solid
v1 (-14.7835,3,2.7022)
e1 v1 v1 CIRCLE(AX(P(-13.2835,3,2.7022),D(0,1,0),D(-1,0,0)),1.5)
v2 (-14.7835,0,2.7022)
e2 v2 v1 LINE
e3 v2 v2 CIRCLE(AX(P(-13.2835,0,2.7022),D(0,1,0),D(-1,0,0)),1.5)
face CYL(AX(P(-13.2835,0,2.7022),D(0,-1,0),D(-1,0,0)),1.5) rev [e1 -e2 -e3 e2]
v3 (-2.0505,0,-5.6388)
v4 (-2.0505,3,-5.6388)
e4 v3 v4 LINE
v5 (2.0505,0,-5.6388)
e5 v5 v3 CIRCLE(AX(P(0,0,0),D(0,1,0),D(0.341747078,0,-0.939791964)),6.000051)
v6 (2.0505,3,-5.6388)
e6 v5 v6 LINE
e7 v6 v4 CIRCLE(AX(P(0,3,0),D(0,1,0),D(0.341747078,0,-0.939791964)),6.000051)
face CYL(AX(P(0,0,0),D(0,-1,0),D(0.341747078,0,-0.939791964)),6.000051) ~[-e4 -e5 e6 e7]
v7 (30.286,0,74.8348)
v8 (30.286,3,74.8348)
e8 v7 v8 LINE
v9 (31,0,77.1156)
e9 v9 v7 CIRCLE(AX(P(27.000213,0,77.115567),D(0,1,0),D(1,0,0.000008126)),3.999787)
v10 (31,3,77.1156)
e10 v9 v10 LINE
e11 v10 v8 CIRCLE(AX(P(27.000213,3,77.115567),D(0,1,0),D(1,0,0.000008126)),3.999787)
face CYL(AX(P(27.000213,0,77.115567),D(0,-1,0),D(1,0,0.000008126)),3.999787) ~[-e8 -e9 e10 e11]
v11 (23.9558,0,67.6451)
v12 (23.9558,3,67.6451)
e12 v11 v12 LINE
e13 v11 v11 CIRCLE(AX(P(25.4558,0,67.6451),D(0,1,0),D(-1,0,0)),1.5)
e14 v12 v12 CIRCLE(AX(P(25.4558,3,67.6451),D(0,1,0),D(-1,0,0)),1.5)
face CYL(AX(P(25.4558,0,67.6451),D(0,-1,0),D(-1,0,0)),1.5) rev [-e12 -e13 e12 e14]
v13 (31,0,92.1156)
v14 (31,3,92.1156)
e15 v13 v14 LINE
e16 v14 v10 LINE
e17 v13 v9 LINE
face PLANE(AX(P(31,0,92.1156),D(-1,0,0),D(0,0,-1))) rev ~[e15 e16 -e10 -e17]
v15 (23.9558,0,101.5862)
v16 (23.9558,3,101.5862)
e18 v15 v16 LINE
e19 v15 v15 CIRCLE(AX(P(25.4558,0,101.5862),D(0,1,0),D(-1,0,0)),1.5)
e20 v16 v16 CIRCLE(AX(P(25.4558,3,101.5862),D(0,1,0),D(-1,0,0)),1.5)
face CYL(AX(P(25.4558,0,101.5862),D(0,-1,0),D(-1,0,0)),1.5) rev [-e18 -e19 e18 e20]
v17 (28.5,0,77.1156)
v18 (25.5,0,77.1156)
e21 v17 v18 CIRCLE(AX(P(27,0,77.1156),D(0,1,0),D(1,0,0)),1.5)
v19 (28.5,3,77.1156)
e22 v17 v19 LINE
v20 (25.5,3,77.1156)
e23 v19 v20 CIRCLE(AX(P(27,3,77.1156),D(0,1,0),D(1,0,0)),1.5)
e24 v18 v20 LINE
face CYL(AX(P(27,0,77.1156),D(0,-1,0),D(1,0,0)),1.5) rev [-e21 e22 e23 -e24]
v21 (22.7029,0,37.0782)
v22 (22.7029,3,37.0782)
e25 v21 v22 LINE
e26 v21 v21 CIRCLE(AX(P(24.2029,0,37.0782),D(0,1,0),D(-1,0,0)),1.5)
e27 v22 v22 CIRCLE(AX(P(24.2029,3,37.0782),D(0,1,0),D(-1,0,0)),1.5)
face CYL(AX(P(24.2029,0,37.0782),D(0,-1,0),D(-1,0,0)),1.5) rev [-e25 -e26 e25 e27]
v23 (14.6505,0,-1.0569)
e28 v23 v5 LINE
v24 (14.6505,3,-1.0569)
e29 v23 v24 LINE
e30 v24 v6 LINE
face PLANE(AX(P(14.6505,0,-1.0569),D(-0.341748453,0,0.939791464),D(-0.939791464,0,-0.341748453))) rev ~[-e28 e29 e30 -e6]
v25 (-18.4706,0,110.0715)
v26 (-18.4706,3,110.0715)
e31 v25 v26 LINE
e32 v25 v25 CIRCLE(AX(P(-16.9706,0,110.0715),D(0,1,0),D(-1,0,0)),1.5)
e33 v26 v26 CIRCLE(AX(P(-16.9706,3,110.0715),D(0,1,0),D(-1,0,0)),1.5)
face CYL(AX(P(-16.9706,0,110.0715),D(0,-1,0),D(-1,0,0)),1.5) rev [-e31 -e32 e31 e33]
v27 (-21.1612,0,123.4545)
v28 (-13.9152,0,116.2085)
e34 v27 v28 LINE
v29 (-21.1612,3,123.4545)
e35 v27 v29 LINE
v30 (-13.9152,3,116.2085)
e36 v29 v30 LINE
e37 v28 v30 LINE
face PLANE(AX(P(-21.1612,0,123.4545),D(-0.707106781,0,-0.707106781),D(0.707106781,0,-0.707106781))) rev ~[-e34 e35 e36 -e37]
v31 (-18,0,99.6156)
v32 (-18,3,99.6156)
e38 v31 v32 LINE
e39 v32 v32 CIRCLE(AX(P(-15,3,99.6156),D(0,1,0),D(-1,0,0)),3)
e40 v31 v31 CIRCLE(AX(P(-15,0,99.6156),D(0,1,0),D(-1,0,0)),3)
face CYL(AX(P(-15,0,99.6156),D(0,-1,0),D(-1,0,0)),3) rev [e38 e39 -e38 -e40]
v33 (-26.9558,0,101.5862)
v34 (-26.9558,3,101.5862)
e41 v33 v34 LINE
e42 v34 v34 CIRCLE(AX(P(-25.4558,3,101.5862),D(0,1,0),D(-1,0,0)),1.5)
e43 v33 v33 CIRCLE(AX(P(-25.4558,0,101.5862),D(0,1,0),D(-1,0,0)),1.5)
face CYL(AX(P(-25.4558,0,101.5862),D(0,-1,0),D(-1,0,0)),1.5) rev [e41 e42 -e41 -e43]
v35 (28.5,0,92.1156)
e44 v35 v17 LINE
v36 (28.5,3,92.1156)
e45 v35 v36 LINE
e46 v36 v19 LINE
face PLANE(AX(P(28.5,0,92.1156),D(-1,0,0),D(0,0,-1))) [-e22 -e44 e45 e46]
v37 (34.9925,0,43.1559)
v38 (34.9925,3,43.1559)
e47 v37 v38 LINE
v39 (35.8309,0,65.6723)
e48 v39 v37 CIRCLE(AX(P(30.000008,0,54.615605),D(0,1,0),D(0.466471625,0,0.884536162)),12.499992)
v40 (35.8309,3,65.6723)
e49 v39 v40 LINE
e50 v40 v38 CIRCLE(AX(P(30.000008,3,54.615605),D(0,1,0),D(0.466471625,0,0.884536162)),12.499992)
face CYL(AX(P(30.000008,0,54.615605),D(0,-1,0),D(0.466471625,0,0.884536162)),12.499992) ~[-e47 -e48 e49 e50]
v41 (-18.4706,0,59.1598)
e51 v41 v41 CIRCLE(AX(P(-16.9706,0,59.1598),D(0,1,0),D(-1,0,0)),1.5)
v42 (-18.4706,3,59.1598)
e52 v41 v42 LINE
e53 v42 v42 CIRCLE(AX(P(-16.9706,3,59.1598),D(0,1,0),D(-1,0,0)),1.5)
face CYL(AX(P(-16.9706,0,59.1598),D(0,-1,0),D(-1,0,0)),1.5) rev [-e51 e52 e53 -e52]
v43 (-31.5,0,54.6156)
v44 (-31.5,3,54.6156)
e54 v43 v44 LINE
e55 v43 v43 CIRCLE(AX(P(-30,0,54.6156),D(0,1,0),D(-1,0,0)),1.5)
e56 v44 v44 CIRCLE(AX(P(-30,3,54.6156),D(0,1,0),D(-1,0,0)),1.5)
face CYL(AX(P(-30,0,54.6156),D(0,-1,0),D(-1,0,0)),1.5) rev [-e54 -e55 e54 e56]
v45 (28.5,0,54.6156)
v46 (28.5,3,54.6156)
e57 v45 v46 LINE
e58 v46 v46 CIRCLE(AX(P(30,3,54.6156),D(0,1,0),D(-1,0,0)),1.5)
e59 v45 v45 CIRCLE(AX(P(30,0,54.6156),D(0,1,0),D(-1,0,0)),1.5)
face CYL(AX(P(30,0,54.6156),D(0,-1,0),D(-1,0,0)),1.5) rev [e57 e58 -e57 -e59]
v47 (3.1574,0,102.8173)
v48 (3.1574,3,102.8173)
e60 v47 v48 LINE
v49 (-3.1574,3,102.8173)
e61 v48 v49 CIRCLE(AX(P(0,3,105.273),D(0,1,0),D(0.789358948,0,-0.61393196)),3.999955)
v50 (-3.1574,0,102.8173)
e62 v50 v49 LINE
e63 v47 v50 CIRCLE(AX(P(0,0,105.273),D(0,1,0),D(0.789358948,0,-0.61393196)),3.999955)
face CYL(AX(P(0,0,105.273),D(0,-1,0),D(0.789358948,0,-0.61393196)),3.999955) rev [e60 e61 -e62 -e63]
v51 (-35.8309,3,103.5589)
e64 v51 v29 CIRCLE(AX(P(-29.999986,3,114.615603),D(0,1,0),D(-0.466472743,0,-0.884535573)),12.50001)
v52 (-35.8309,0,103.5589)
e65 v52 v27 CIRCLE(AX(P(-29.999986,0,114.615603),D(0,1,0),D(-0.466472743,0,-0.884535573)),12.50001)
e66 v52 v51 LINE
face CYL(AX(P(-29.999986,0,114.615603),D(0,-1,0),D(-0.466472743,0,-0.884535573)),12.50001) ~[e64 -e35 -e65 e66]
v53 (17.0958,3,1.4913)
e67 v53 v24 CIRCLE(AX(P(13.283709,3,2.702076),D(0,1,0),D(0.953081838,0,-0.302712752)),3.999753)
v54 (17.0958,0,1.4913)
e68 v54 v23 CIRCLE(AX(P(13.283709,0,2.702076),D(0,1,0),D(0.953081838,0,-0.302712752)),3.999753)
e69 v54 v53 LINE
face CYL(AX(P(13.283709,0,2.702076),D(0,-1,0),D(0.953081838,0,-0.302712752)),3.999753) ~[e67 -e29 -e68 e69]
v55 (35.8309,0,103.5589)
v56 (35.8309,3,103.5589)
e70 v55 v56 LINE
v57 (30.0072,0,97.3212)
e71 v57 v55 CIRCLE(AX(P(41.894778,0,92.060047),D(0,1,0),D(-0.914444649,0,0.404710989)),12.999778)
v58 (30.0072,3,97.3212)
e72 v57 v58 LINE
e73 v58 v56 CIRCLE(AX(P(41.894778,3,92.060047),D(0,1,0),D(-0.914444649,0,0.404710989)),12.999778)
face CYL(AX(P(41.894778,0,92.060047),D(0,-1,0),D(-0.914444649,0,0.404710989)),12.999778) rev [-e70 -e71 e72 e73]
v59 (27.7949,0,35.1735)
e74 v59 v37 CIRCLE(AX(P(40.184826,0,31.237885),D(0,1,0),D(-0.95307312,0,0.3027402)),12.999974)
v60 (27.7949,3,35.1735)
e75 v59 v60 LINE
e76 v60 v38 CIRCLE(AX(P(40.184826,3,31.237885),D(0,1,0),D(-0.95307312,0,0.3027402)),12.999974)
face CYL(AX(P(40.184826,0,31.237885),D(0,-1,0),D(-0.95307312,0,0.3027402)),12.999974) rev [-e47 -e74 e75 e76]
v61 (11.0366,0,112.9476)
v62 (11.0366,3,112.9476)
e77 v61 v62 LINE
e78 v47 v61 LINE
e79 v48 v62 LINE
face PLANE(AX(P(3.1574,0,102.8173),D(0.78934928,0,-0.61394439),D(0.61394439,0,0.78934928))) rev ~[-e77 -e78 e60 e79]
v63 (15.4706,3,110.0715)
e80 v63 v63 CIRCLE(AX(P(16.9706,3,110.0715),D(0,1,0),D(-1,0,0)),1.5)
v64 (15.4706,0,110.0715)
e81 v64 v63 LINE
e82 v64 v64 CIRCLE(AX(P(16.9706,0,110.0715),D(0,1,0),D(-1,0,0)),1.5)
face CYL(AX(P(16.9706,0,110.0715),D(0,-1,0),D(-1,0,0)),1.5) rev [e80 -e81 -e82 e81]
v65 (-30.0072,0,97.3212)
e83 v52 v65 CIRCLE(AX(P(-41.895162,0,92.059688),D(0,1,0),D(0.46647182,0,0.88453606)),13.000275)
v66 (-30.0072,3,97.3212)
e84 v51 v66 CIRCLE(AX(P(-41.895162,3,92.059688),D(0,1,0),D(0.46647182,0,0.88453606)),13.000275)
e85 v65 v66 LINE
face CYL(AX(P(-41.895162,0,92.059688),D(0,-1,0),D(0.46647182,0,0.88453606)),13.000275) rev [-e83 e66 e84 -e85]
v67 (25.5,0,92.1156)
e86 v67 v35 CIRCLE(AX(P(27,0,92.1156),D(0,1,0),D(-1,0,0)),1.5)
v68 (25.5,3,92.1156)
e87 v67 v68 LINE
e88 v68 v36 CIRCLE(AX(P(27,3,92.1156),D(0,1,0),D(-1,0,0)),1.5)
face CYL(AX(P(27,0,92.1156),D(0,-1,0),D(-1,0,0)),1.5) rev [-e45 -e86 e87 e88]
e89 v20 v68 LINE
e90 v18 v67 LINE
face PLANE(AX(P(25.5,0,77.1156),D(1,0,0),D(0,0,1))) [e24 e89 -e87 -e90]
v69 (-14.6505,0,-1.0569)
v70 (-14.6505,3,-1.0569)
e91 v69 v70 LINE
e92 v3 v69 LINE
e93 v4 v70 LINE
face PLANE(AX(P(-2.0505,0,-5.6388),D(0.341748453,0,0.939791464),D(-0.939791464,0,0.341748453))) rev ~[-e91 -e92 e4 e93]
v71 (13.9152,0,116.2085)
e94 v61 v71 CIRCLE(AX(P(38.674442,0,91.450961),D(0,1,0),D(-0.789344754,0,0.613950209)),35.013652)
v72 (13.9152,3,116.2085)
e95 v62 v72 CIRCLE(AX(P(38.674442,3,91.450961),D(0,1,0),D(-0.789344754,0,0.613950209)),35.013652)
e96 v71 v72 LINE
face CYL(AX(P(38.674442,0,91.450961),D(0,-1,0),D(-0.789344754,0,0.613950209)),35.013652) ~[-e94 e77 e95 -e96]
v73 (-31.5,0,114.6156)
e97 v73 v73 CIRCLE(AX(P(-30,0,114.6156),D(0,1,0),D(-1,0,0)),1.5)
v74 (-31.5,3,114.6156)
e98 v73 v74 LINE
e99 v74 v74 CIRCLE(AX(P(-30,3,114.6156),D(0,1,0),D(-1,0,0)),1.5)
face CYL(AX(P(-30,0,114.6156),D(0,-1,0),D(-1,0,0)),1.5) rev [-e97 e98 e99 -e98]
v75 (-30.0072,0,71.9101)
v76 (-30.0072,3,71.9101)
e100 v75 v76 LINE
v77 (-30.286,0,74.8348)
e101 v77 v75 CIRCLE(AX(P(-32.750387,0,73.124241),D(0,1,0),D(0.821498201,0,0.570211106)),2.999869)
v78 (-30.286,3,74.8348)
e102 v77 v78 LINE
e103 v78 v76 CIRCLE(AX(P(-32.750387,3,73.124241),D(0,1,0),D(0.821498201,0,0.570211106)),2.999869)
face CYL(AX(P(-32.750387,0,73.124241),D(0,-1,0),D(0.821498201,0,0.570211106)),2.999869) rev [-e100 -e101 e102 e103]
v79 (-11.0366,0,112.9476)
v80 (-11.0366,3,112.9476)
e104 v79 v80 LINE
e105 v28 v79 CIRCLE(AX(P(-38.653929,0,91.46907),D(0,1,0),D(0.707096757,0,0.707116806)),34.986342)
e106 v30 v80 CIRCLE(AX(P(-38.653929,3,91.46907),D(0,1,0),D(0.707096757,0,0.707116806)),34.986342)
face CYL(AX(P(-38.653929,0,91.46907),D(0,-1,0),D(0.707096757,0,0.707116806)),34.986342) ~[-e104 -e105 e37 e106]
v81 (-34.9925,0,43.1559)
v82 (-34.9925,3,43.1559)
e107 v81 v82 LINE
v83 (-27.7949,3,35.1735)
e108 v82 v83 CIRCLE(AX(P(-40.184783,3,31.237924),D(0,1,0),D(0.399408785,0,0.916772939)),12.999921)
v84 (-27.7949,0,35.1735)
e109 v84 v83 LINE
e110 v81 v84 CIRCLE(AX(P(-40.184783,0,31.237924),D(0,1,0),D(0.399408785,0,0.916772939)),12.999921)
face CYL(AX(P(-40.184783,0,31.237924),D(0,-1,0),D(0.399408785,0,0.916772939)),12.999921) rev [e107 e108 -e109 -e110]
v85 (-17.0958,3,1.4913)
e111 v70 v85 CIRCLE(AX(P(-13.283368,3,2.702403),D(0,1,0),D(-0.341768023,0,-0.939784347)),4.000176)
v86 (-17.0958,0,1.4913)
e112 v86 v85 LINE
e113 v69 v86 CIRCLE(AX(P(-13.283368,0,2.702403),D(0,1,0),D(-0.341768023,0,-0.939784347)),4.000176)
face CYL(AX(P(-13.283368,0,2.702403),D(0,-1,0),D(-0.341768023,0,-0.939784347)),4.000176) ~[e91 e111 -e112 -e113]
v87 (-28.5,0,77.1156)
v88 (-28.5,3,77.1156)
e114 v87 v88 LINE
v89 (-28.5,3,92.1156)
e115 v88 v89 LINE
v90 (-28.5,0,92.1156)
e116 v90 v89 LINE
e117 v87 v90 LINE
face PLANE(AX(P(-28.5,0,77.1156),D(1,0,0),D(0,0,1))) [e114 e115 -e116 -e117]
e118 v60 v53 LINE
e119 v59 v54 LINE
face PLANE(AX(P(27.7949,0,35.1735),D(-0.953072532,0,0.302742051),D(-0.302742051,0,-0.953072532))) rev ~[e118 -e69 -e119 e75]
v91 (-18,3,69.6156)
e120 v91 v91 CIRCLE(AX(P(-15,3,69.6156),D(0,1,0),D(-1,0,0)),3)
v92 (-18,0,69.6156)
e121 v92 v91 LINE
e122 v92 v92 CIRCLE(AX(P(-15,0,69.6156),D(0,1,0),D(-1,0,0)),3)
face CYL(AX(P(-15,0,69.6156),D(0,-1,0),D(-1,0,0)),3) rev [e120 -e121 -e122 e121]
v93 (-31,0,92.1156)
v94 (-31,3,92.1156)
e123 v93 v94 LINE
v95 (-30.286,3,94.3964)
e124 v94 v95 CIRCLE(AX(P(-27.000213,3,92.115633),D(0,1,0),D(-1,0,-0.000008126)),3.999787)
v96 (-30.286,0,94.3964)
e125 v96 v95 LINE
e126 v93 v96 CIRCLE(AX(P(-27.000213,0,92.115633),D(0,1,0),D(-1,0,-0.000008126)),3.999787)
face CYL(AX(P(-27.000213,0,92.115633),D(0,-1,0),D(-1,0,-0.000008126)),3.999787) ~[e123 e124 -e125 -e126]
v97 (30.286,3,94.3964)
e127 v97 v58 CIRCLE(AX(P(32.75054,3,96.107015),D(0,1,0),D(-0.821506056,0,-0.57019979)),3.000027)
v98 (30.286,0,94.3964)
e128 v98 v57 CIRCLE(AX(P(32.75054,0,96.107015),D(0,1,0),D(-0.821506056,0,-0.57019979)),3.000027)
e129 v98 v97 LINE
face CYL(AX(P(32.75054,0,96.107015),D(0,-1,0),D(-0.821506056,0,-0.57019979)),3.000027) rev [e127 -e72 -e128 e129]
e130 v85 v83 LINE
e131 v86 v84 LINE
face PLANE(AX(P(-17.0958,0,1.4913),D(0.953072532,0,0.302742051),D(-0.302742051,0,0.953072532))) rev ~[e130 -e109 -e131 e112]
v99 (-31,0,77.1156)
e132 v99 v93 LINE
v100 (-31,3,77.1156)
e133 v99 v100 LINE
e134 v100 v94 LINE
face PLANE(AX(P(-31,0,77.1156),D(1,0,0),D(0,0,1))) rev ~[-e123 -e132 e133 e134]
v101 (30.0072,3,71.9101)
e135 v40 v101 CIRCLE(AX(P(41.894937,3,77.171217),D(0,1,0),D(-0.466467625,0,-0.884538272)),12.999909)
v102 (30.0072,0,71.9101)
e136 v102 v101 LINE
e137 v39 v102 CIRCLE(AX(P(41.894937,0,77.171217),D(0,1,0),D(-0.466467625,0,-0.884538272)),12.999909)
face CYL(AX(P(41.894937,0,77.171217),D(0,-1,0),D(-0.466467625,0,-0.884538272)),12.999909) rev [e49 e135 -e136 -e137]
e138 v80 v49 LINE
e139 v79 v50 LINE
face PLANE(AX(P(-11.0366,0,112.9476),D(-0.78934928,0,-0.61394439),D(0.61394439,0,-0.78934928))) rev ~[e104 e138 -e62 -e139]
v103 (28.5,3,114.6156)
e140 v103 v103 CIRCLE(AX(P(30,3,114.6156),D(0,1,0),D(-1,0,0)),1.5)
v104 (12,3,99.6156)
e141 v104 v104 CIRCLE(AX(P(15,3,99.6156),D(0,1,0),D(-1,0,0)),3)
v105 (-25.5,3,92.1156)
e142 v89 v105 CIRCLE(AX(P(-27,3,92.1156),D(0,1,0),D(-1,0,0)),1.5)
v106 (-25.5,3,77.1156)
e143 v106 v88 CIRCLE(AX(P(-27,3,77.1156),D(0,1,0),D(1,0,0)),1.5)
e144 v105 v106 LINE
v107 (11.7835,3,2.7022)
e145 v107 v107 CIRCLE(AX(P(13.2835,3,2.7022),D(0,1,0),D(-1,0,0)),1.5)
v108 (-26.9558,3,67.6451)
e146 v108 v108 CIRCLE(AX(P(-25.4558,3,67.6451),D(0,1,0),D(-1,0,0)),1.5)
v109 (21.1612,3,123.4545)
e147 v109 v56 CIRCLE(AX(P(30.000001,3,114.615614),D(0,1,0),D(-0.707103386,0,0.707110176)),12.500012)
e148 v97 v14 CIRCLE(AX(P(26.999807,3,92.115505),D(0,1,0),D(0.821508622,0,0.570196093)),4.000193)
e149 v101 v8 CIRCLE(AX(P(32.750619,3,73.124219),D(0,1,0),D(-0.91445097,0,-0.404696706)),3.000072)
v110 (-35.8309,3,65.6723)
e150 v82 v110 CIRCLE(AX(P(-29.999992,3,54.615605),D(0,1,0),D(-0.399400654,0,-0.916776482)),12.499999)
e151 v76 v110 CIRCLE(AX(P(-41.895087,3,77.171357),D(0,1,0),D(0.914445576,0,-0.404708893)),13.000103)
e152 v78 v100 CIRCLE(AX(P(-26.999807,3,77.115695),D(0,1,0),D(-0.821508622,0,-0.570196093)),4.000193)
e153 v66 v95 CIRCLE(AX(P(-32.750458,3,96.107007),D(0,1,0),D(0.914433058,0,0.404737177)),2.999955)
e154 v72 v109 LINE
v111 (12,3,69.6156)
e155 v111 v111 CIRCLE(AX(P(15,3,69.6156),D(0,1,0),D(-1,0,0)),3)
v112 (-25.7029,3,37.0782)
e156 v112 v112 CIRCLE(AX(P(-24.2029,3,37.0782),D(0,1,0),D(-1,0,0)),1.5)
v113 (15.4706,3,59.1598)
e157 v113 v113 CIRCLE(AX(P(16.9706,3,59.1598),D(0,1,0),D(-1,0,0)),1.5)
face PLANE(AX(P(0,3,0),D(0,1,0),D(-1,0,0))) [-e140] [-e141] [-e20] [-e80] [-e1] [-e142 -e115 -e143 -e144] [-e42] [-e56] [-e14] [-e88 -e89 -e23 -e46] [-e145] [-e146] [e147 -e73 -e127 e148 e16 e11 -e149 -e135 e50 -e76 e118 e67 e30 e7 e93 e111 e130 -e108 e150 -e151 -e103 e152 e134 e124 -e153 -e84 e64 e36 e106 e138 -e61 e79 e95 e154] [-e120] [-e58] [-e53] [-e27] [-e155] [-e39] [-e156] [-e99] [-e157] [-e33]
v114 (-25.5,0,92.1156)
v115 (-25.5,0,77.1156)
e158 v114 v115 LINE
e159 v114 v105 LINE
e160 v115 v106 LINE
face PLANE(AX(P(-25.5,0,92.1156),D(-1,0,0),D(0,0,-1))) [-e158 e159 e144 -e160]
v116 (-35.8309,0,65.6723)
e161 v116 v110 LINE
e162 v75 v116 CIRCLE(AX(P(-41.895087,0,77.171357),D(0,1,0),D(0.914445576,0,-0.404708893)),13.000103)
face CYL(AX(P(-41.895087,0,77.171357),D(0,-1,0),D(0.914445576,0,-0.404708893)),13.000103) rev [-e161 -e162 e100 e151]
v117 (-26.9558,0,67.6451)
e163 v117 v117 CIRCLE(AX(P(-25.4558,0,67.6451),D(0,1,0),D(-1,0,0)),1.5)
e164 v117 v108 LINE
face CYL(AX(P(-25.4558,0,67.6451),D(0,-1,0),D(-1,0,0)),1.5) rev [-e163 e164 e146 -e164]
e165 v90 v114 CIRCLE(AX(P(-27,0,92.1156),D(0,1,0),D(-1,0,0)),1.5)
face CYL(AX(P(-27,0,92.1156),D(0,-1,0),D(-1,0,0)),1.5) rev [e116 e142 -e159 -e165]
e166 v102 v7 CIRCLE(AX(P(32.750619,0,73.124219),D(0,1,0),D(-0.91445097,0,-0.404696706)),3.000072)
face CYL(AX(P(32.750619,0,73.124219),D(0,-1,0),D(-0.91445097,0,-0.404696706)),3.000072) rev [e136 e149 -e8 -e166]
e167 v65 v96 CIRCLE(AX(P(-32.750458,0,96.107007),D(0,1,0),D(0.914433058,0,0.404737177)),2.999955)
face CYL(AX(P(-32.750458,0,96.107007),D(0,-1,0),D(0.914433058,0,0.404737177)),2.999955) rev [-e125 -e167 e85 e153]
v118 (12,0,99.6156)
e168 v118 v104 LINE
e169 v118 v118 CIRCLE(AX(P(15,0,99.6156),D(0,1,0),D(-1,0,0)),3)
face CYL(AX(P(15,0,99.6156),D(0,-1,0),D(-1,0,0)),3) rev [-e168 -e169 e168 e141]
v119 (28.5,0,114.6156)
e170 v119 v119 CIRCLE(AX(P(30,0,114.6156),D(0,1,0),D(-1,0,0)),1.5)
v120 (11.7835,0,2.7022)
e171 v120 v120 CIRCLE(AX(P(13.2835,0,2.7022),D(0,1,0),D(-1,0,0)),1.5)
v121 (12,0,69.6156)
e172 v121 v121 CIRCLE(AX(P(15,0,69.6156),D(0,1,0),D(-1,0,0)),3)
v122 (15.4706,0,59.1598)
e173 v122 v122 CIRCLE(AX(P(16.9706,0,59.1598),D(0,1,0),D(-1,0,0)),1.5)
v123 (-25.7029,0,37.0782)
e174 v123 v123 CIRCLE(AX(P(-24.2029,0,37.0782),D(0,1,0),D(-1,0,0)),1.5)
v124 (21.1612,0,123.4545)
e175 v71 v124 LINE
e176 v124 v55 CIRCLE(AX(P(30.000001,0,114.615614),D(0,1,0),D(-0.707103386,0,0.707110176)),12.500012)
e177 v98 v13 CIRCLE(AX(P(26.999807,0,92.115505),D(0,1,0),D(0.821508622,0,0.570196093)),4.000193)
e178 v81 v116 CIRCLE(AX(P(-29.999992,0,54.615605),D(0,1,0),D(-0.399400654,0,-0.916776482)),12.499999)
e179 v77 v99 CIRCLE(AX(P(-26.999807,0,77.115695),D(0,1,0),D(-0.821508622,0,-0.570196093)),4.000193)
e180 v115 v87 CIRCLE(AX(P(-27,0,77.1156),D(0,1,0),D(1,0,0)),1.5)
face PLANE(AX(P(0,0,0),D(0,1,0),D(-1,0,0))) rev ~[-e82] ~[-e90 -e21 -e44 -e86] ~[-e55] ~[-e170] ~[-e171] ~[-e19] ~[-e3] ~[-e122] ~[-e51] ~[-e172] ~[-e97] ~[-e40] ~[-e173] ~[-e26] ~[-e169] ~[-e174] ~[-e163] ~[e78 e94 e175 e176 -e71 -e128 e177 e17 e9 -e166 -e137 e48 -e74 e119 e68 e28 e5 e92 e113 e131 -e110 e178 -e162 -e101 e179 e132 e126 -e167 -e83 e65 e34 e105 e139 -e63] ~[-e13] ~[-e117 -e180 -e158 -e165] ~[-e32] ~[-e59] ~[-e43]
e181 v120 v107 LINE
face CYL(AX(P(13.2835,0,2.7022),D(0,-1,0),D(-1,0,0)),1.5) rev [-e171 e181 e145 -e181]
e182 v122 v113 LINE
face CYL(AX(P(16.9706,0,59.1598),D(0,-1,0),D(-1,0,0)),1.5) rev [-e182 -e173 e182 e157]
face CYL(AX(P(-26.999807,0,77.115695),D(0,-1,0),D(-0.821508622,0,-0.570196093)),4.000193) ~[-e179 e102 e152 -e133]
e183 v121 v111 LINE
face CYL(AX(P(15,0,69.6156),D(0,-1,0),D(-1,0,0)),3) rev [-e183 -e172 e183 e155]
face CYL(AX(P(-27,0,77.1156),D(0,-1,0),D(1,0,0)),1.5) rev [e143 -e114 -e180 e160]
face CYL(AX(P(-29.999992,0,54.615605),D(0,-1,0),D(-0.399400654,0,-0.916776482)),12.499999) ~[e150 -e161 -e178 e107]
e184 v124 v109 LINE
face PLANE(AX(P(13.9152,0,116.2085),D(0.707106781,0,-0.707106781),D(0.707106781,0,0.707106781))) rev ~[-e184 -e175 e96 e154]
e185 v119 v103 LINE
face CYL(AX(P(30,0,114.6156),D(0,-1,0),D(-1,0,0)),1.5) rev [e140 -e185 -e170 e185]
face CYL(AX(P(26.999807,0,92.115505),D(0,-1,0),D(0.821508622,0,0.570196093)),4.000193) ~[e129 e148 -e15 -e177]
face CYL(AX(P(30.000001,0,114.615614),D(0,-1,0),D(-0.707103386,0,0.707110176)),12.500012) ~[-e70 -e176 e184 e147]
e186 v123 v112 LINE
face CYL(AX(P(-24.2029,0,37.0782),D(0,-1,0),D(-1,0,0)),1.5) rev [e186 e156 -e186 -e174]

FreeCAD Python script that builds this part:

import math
import FreeCAD as App
import Part
import Sketcher

V = App.Vector
Q = App.Units.Quantity

doc = App.newDocument("Part")
body = doc.addObject("PartDesign::Body", "Body")

# Sketch on XZ plane
sketch1 = body.newObject("Sketcher::SketchObject", "Sketch")
sketch1.AttachmentSupport = (doc.getObject("XZ_Plane"), [""])
sketch1.MapMode = "FlatFace"
sketch1.addGeometry(Part.ArcOfCircle(Part.Circle(V(41.895, 92.0599, 0), V(0, 0, 1), 13.000041), math.radians(117.805322), math.radians(156.126787)), False)
sketch1.addGeometry(Part.ArcOfCircle(Part.Circle(V(32.7505, 96.107, 0), V(0, 0, 1), 2.999985), math.radians(156.125549), math.radians(214.764367)), False)
sketch1.addGeometry(Part.ArcOfCircle(Part.Circle(V(27, 92.1156, 0), V(0, 0, 1), 3.999981), math.radians(0), math.radians(34.764367)), False)
sketch1.addGeometry(Part.LineSegment(V(31, 92.1156, 0), V(31, 77.1156, 0)), False)
sketch1.addGeometry(Part.ArcOfCircle(Part.Circle(V(27, 77.1156, 0), V(0, 0, 1), 4), math.radians(-34.764367), math.radians(0)), False)
sketch1.addGeometry(Part.ArcOfCircle(Part.Circle(V(32.7505, 73.1242, 0), V(0, 0, 1), 2.999956), math.radians(145.235633), math.radians(203.872704)), False)
sketch1.addGeometry(Part.ArcOfCircle(Part.Circle(V(41.895, 77.1713, 0), V(0, 0, 1), 13.000012), math.radians(-156.12719), math.radians(-117.805322)), False)
sketch1.addGeometry(Part.ArcOfCircle(Part.Circle(V(30, 54.6156, 0), V(0, 0, 1), 12.5), math.radians(-66.459308), math.radians(62.194472)), False)
sketch1.addGeometry(Part.ArcOfCircle(Part.Circle(V(40.1848, 31.2379, 0), V(0, 0, 1), 12.999945), math.radians(113.541251), math.radians(162.377767)), False)
sketch1.addGeometry(Part.LineSegment(V(27.7949, 35.1735, 0), V(17.0958, 1.4913, 0)), False)
sketch1.addGeometry(Part.ArcOfCircle(Part.Circle(V(13.2835, 2.7022, 0), V(0, 0, 1), 3.999989), math.radians(-70.016159), math.radians(-17.621398)), False)
sketch1.addGeometry(Part.LineSegment(V(14.6505, -1.0569, 0), V(2.0505, -5.6388, 0)), False)
sketch1.addGeometry(Part.ArcOfCircle(Part.Circle(V(0, 0, 0), V(0, 0, 1), 6.000051), math.radians(-109.983351), math.radians(-70.016649)), False)
sketch1.addGeometry(Part.LineSegment(V(-2.0505, -5.6388, 0), V(-14.6505, -1.0569, 0)), False)
sketch1.addGeometry(Part.ArcOfCircle(Part.Circle(V(-13.2835, 2.7022, 0), V(0, 0, 1), 3.99994), math.radians(-162.378602), math.radians(-109.983841)), False)
sketch1.addGeometry(Part.LineSegment(V(-17.0958, 1.4913, 0), V(-27.7949, 35.1735, 0)), False)
sketch1.addGeometry(Part.ArcOfCircle(Part.Circle(V(-40.1848, 31.2379, 0), V(0, 0, 1), 12.99995), math.radians(17.622233), math.radians(66.458749)), False)
sketch1.addGeometry(Part.ArcOfCircle(Part.Circle(V(-30, 54.6156, 0), V(0, 0, 1), 12.499991), math.radians(117.805528), math.radians(246.459308)), False)
sketch1.addGeometry(Part.ArcOfCircle(Part.Circle(V(-41.895, 77.1713, 0), V(0, 0, 1), 13.000001), math.radians(-62.194678), math.radians(-23.87281)), False)
sketch1.addGeometry(Part.ArcOfCircle(Part.Circle(V(-32.7505, 73.1242, 0), V(0, 0, 1), 2.999985), math.radians(-23.872704), math.radians(34.764367)), False)
sketch1.addGeometry(Part.ArcOfCircle(Part.Circle(V(-27, 77.1156, 0), V(0, 0, 1), 3.999981), math.radians(180), math.radians(214.764367)), False)
sketch1.addGeometry(Part.LineSegment(V(-31, 77.1156, 0), V(-31, 92.1156, 0)), False)
sketch1.addGeometry(Part.ArcOfCircle(Part.Circle(V(-27, 92.1156, 0), V(0, 0, 1), 4), math.radians(145.235633), math.radians(180)), False)
sketch1.addGeometry(Part.ArcOfCircle(Part.Circle(V(-32.7505, 96.107, 0), V(0, 0, 1), 2.999996), math.radians(-34.764367), math.radians(23.874451)), False)
sketch1.addGeometry(Part.ArcOfCircle(Part.Circle(V(-41.895, 92.0599, 0), V(0, 0, 1), 13.000012), math.radians(23.873213), math.radians(62.194678)), False)
sketch1.addGeometry(Part.ArcOfCircle(Part.Circle(V(-30, 114.6156, 0), V(0, 0, 1), 12.5), math.radians(45.000324), math.radians(242.194472)), False)
sketch1.addGeometry(Part.LineSegment(V(-21.1612, 123.4545, 0), V(-13.9152, 116.2085, 0)), False)
sketch1.addGeometry(Part.ArcOfCircle(Part.Circle(V(-38.653929, 91.46907, 0), V(0, 0, 1), 34.986342), math.radians(37.872897), math.radians(45.000812)), False)
sketch1.addGeometry(Part.LineSegment(V(-11.0366, 112.9476, 0), V(-3.1574, 102.8173, 0)), False)
sketch1.addGeometry(Part.ArcOfCircle(Part.Circle(V(0, 105.273, 0), V(0, 0, 1), 3.999955), math.radians(-142.125645), math.radians(-37.874355)), False)
sketch1.addGeometry(Part.LineSegment(V(3.1574, 102.8173, 0), V(11.0366, 112.9476, 0)), False)
sketch1.addGeometry(Part.ArcOfCircle(Part.Circle(V(38.674442, 91.450961, 0), V(0, 0, 1), 35.013652), math.radians(135.001971), math.radians(142.12432)), False)
sketch1.addGeometry(Part.LineSegment(V(13.9152, 116.2085, 0), V(21.1612, 123.4545, 0)), False)
sketch1.addGeometry(Part.ArcOfCircle(Part.Circle(V(30, 114.6156, 0), V(0, 0, 1), 12.500022), math.radians(-62.194472), math.radians(134.999676)), False)
sketch1.addGeometry(Part.Circle(V(13.2835, 2.7022, 0), V(0, 0, 1), 1.5), False)
sketch1.addGeometry(Part.Circle(V(24.2029, 37.0782, 0), V(0, 0, 1), 1.5), False)
sketch1.addGeometry(Part.Circle(V(30, 54.6156, 0), V(0, 0, 1), 1.5), False)
sketch1.addGeometry(Part.Circle(V(16.9706, 59.1598, 0), V(0, 0, 1), 1.5), False)
sketch1.addGeometry(Part.Circle(V(-13.2835, 2.7022, 0), V(0, 0, 1), 1.5), False)
sketch1.addGeometry(Part.Circle(V(-16.9706, 59.1598, 0), V(0, 0, 1), 1.5), False)
sketch1.addGeometry(Part.Circle(V(-24.2029, 37.0782, 0), V(0, 0, 1), 1.5), False)
sketch1.addGeometry(Part.Circle(V(-30, 54.6156, 0), V(0, 0, 1), 1.5), False)
sketch1.addGeometry(Part.Circle(V(25.4558, 67.6451, 0), V(0, 0, 1), 1.5), False)
sketch1.addGeometry(Part.ArcOfCircle(Part.Circle(V(27, 77.1156, 0), V(0, 0, 1), 1.5), math.radians(180), math.radians(360)), False)
sketch1.addGeometry(Part.LineSegment(V(28.5, 77.1156, 0), V(28.5, 92.1156, 0)), False)
sketch1.addGeometry(Part.ArcOfCircle(Part.Circle(V(27, 92.1156, 0), V(0, 0, 1), 1.5), math.radians(0), math.radians(180)), False)
sketch1.addGeometry(Part.LineSegment(V(25.5, 92.1156, 0), V(25.5, 77.1156, 0)), False)
sketch1.addGeometry(Part.Circle(V(15, 69.6156, 0), V(0, 0, 1), 3), False)
sketch1.addGeometry(Part.Circle(V(25.4558, 101.5862, 0), V(0, 0, 1), 1.5), False)
sketch1.addGeometry(Part.Circle(V(30, 114.6156, 0), V(0, 0, 1), 1.5), False)
sketch1.addGeometry(Part.Circle(V(15, 99.6156, 0), V(0, 0, 1), 3), False)
sketch1.addGeometry(Part.Circle(V(16.9706, 110.0715, 0), V(0, 0, 1), 1.5), False)
sketch1.addGeometry(Part.Circle(V(-15, 69.6156, 0), V(0, 0, 1), 3), False)
sketch1.addGeometry(Part.Circle(V(-25.4558, 67.6451, 0), V(0, 0, 1), 1.5), False)
sketch1.addGeometry(Part.ArcOfCircle(Part.Circle(V(-27, 77.1156, 0), V(0, 0, 1), 1.5), math.radians(180), math.radians(360)), False)
sketch1.addGeometry(Part.LineSegment(V(-25.5, 77.1156, 0), V(-25.5, 92.1156, 0)), False)
sketch1.addGeometry(Part.ArcOfCircle(Part.Circle(V(-27, 92.1156, 0), V(0, 0, 1), 1.5), math.radians(0), math.radians(180)), False)
sketch1.addGeometry(Part.LineSegment(V(-28.5, 92.1156, 0), V(-28.5, 77.1156, 0)), False)
sketch1.addGeometry(Part.Circle(V(-15, 99.6156, 0), V(0, 0, 1), 3), False)
sketch1.addGeometry(Part.Circle(V(-16.9706, 110.0715, 0), V(0, 0, 1), 1.5), False)
sketch1.addGeometry(Part.Circle(V(-25.4558, 101.5862, 0), V(0, 0, 1), 1.5), False)
sketch1.addGeometry(Part.Circle(V(-30, 114.6156, 0), V(0, 0, 1), 1.5), False)
sketch1.addConstraint(Sketcher.Constraint("Coincident", 0, 2, 1, 1))
sketch1.addConstraint(Sketcher.Constraint("Coincident", 1, 2, 2, 2))
sketch1.addConstraint(Sketcher.Constraint("Coincident", 2, 1, 3, 1))
sketch1.addConstraint(Sketcher.Constraint("Coincident", 3, 2, 4, 2))
sketch1.addConstraint(Sketcher.Constraint("Coincident", 4, 1, 5, 1))
sketch1.addConstraint(Sketcher.Constraint("Coincident", 5, 2, 6, 1))
sketch1.addConstraint(Sketcher.Constraint("Coincident", 6, 2, 7, 2))
sketch1.addConstraint(Sketcher.Constraint("Coincident", 7, 1, 8, 1))
sketch1.addConstraint(Sketcher.Constraint("Coincident", 8, 2, 9, 1))
sketch1.addConstraint(Sketcher.Constraint("Coincident", 9, 2, 10, 2))
sketch1.addConstraint(Sketcher.Constraint("Coincident", 10, 1, 11, 1))
sketch1.addConstraint(Sketcher.Constraint("Coincident", 11, 2, 12, 2))
sketch1.addConstraint(Sketcher.Constraint("Coincident", 12, 1, 13, 1))
sketch1.addConstraint(Sketcher.Constraint("Coincident", 13, 2, 14, 2))
sketch1.addConstraint(Sketcher.Constraint("Coincident", 14, 1, 15, 1))
sketch1.addConstraint(Sketcher.Constraint("Coincident", 15, 2, 16, 1))
sketch1.addConstraint(Sketcher.Constraint("Coincident", 16, 2, 17, 2))
sketch1.addConstraint(Sketcher.Constraint("Coincident", 17, 1, 18, 1))
sketch1.addConstraint(Sketcher.Constraint("Coincident", 18, 2, 19, 1))
sketch1.addConstraint(Sketcher.Constraint("Coincident", 19, 2, 20, 2))
sketch1.addConstraint(Sketcher.Constraint("Coincident", 20, 1, 21, 1))
sketch1.addConstraint(Sketcher.Constraint("Coincident", 21, 2, 22, 2))
sketch1.addConstraint(Sketcher.Constraint("Coincident", 22, 1, 23, 1))
sketch1.addConstraint(Sketcher.Constraint("Coincident", 23, 2, 24, 1))
sketch1.addConstraint(Sketcher.Constraint("Coincident", 24, 2, 25, 2))
sketch1.addConstraint(Sketcher.Constraint("Coincident", 25, 1, 26, 1))
sketch1.addConstraint(Sketcher.Constraint("Coincident", 26, 2, 27, 2))
sketch1.addConstraint(Sketcher.Constraint("Coincident", 27, 1, 28, 1))
sketch1.addConstraint(Sketcher.Constraint("Coincident", 28, 2, 29, 1))
sketch1.addConstraint(Sketcher.Constraint("Coincident", 29, 2, 30, 1))
sketch1.addConstraint(Sketcher.Constraint("Coincident", 30, 2, 31, 2))
sketch1.addConstraint(Sketcher.Constraint("Coincident", 31, 1, 32, 1))
sketch1.addConstraint(Sketcher.Constraint("Coincident", 32, 2, 33, 2))
sketch1.addConstraint(Sketcher.Constraint("Coincident", 33, 1, 0, 1))
sketch1.addConstraint(Sketcher.Constraint("Coincident", 43, 2, 44, 1))
sketch1.addConstraint(Sketcher.Constraint("Coincident", 44, 2, 45, 1))
sketch1.addConstraint(Sketcher.Constraint("Coincident", 45, 2, 46, 1))
sketch1.addConstraint(Sketcher.Constraint("Coincident", 46, 2, 43, 1))
sketch1.addConstraint(Sketcher.Constraint("Coincident", 54, 2, 55, 1))
sketch1.addConstraint(Sketcher.Constraint("Coincident", 55, 2, 56, 1))
sketch1.addConstraint(Sketcher.Constraint("Coincident", 56, 2, 57, 1))
sketch1.addConstraint(Sketcher.Constraint("Coincident", 57, 2, 54, 1))
sketch1.addConstraint(Sketcher.Constraint("Vertical", 3))
sketch1.addConstraint(Sketcher.Constraint("Vertical", 21))
sketch1.addConstraint(Sketcher.Constraint("Vertical", 44))
sketch1.addConstraint(Sketcher.Constraint("Vertical", 46))
sketch1.addConstraint(Sketcher.Constraint("Vertical", 55))
sketch1.addConstraint(Sketcher.Constraint("Vertical", 57))
sketch1.addConstraint(Sketcher.Constraint("Coincident", 12, 3, -1, 1))
sketch1.addConstraint(Sketcher.Constraint("Coincident", 34, 3, 10, 3))
sketch1.addConstraint(Sketcher.Constraint("Coincident", 36, 3, 7, 3))
sketch1.addConstraint(Sketcher.Constraint("Coincident", 38, 3, 14, 3))
sketch1.addConstraint(Sketcher.Constraint("Coincident", 41, 3, 17, 3))
sketch1.addConstraint(Sketcher.Constraint("Coincident", 43, 3, 4, 3))
sketch1.addConstraint(Sketcher.Constraint("Coincident", 45, 3, 2, 3))
sketch1.addConstraint(Sketcher.Constraint("Coincident", 49, 3, 33, 3))
sketch1.addConstraint(Sketcher.Constraint("Coincident", 54, 3, 20, 3))
sketch1.addConstraint(Sketcher.Constraint("Coincident", 56, 3, 22, 3))
sketch1.addConstraint(Sketcher.Constraint("Coincident", 61, 3, 25, 3))
sketch1.addConstraint(Sketcher.Constraint("PointOnObject", 29, 3, -2))
sketch1.addConstraint(Sketcher.Constraint("Diameter", 34, Q("3 mm")))
sketch1.addConstraint(Sketcher.Constraint("Diameter", 35, Q("3 mm")))
sketch1.addConstraint(Sketcher.Constraint("Diameter", 36, Q("3 mm")))
sketch1.addConstraint(Sketcher.Constraint("Diameter", 37, Q("3 mm")))
sketch1.addConstraint(Sketcher.Constraint("Diameter", 38, Q("3 mm")))
sketch1.addConstraint(Sketcher.Constraint("Diameter", 39, Q("3 mm")))
sketch1.addConstraint(Sketcher.Constraint("Diameter", 40, Q("3 mm")))
sketch1.addConstraint(Sketcher.Constraint("Diameter", 41, Q("3 mm")))
sketch1.addConstraint(Sketcher.Constraint("Diameter", 42, Q("3 mm")))
sketch1.addConstraint(Sketcher.Constraint("Diameter", 47, Q("6 mm")))
sketch1.addConstraint(Sketcher.Constraint("Diameter", 48, Q("3 mm")))
sketch1.addConstraint(Sketcher.Constraint("Diameter", 49, Q("3 mm")))
sketch1.addConstraint(Sketcher.Constraint("Diameter", 50, Q("6 mm")))
sketch1.addConstraint(Sketcher.Constraint("Diameter", 51, Q("3 mm")))
sketch1.addConstraint(Sketcher.Constraint("Diameter", 52, Q("6 mm")))
sketch1.addConstraint(Sketcher.Constraint("Diameter", 53, Q("3 mm")))
sketch1.addConstraint(Sketcher.Constraint("Diameter", 58, Q("6 mm")))
sketch1.addConstraint(Sketcher.Constraint("Diameter", 59, Q("3 mm")))
sketch1.addConstraint(Sketcher.Constraint("Diameter", 60, Q("3 mm")))
sketch1.addConstraint(Sketcher.Constraint("Diameter", 61, Q("3 mm")))
sketch1.addConstraint(Sketcher.Constraint("Radius", 0, Q("13 mm")))
sketch1.addConstraint(Sketcher.Constraint("Radius", 1, Q("3 mm")))
sketch1.addConstraint(Sketcher.Constraint("Radius", 2, Q("4 mm")))
sketch1.addConstraint(Sketcher.Constraint("Radius", 5, Q("3 mm")))
sketch1.addConstraint(Sketcher.Constraint("Radius", 6, Q("13 mm")))
sketch1.addConstraint(Sketcher.Constraint("Radius", 8, Q("13 mm")))
sketch1.addConstraint(Sketcher.Constraint("Radius", 10, Q("4 mm")))
sketch1.addConstraint(Sketcher.Constraint("Radius", 12, Q("6 mm")))
sketch1.addConstraint(Sketcher.Constraint("Radius", 14, Q("4 mm")))
sketch1.addConstraint(Sketcher.Constraint("Radius", 16, Q("13 mm")))
sketch1.addConstraint(Sketcher.Constraint("Radius", 18, Q("13 mm")))
sketch1.addConstraint(Sketcher.Constraint("Radius", 19, Q("3 mm")))
sketch1.addConstraint(Sketcher.Constraint("Radius", 20, Q("4 mm")))
sketch1.addConstraint(Sketcher.Constraint("Radius", 23, Q("3 mm")))
sketch1.addConstraint(Sketcher.Constraint("Radius", 24, Q("13 mm")))
sketch1.addConstraint(Sketcher.Constraint("Radius", 29, Q("4 mm")))
sketch1.addConstraint(Sketcher.Constraint("Radius", 7, Q("12.5 mm")))
sketch1.addConstraint(Sketcher.Constraint("Radius", 17, Q("12.5 mm")))
sketch1.addConstraint(Sketcher.Constraint("Radius", 25, Q("12.5 mm")))
sketch1.addConstraint(Sketcher.Constraint("Radius", 33, Q("12.5 mm")))
sketch1.addConstraint(Sketcher.Constraint("Radius", 43, Q("1.5 mm")))
sketch1.addConstraint(Sketcher.Constraint("Radius", 54, Q("1.5 mm")))
sketch1.addConstraint(Sketcher.Constraint("DistanceY", 3, 2, 3, 1, Q("15 mm")))
sketch1.addConstraint(Sketcher.Constraint("DistanceY", 21, 1, 21, 2, Q("15 mm")))
sketch1.addConstraint(Sketcher.Constraint("DistanceY", 44, 1, 44, 2, Q("15 mm")))
sketch1.addConstraint(Sketcher.Constraint("DistanceY", 46, 2, 46, 1, Q("15 mm")))
sketch1.addConstraint(Sketcher.Constraint("DistanceY", 55, 1, 55, 2, Q("15 mm")))
sketch1.addConstraint(Sketcher.Constraint("DistanceY", 57, 2, 57, 1, Q("15 mm")))
sketch1.addConstraint(Sketcher.Constraint("DistanceX", -1, 1, 2, 3, Q("27 mm")))
sketch1.addConstraint(Sketcher.Constraint("DistanceX", -1, 1, 7, 3, Q("30 mm")))
sketch1.addConstraint(Sketcher.Constraint("DistanceX", 17, 3, -1, 1, Q("30 mm")))
sketch1.addConstraint(Sketcher.Constraint("DistanceX", 20, 3, -1, 1, Q("27 mm")))
sketch1.addConstraint(Sketcher.Constraint("DistanceX", 25, 3, -1, 1, Q("30 mm")))
sketch1.addConstraint(Sketcher.Constraint("DistanceX", -1, 1, 33, 3, Q("30 mm")))
sketch1.addConstraint(Sketcher.Constraint("DistanceX", -1, 1, 47, 3, Q("15 mm")))
sketch1.addConstraint(Sketcher.Constraint("DistanceX", -1, 1, 50, 3, Q("15 mm")))
sketch1.addConstraint(Sketcher.Constraint("DistanceX", 52, 3, -1, 1, Q("15 mm")))
sketch1.addConstraint(Sketcher.Constraint("DistanceX", 58, 3, -1, 1, Q("15 mm")))
sketch1.addConstraint(Sketcher.Constraint("Radius", 27, Q("34.9863 mm")))
sketch1.addConstraint(Sketcher.Constraint("Radius", 31, Q("35.0137 mm")))
sketch1.addConstraint(Sketcher.Constraint("DistanceY", -1, 1, 0, 3, Q("92.06 mm")))
sketch1.addConstraint(Sketcher.Constraint("DistanceY", -1, 1, 24, 3, Q("92.06 mm")))
sketch1.addConstraint(Sketcher.Constraint("DistanceY", -1, 1, 5, 2, Q("71.91 mm")))
sketch1.addConstraint(Sketcher.Constraint("DistanceY", -1, 1, 18, 2, Q("71.91 mm")))
sketch1.addConstraint(Sketcher.Constraint("DistanceX", -1, 1, 0, 3, Q("41.895 mm")))
sketch1.addConstraint(Sketcher.Constraint("DistanceY", -1, 1, 1, 3, Q("96.107 mm")))
sketch1.addConstraint(Sketcher.Constraint("DistanceX", -1, 1, 6, 3, Q("41.895 mm")))
sketch1.addConstraint(Sketcher.Constraint("DistanceY", -1, 1, 8, 3, Q("31.238 mm")))
sketch1.addConstraint(Sketcher.Constraint("DistanceY", -1, 1, 16, 3, Q("31.238 mm")))
sketch1.addConstraint(Sketcher.Constraint("DistanceX", 18, 3, -1, 1, Q("41.895 mm")))
sketch1.addConstraint(Sketcher.Constraint("DistanceY", -1, 1, 23, 3, Q("96.107 mm")))
sketch1.addConstraint(Sketcher.Constraint("DistanceX", 24, 3, -1, 1, Q("41.895 mm")))
sketch1.addConstraint(Sketcher.Constraint("DistanceX", 27, 3, -1, 1, Q("38.654 mm")))
sketch1.addConstraint(Sketcher.Constraint("DistanceY", -1, 1, 27, 3, Q("91.469 mm")))
sketch1.addConstraint(Sketcher.Constraint("DistanceY", -1, 1, 29, 3, Q("105.273 mm")))
sketch1.addConstraint(Sketcher.Constraint("DistanceY", -1, 1, 31, 3, Q("91.451 mm")))
sketch1.addConstraint(Sketcher.Constraint("DistanceX", -1, 1, 35, 3, Q("24.203 mm")))
sketch1.addConstraint(Sketcher.Constraint("DistanceX", 40, 3, -1, 1, Q("24.203 mm")))
sketch1.addConstraint(Sketcher.Constraint("DistanceY", -1, 1, 42, 3, Q("67.645 mm")))
sketch1.addConstraint(Sketcher.Constraint("DistanceY", -1, 1, 53, 3, Q("67.645 mm")))
sketch1.addConstraint(Sketcher.Constraint("DistanceX", -1, 1, 1, 2, Q("30.286 mm")))
sketch1.addConstraint(Sketcher.Constraint("DistanceX", -1, 1, 4, 1, Q("30.286 mm")))
sketch1.addConstraint(Sketcher.Constraint("DistanceX", -1, 1, 6, 2, Q("35.831 mm")))
sketch1.addConstraint(Sketcher.Constraint("DistanceY", -1, 1, 7, 1, Q("43.156 mm")))
sketch1.addConstraint(Sketcher.Constraint("DistanceX", -1, 1, 8, 2, Q("27.795 mm")))
sketch1.addConstraint(Sketcher.Constraint("DistanceY", 10, 1, -1, 1, Q("1.057 mm")))
sketch1.addConstraint(Sketcher.Constraint("DistanceY", 13, 2, -1, 1, Q("1.057 mm")))
sketch1.addConstraint(Sketcher.Constraint("DistanceX", 15, 2, -1, 1, Q("27.795 mm")))
sketch1.addConstraint(Sketcher.Constraint("DistanceY", -1, 1, 16, 2, Q("43.156 mm")))
sketch1.addConstraint(Sketcher.Constraint("DistanceX", 17, 1, -1, 1, Q("35.831 mm")))
sketch1.addConstraint(Sketcher.Constraint("DistanceX", 19, 2, -1, 1, Q("30.286 mm")))
sketch1.addConstraint(Sketcher.Constraint("DistanceX", 22, 1, -1, 1, Q("30.286 mm")))
sketch1.addConstraint(Sketcher.Constraint("DistanceX", 24, 2, -1, 1, Q("35.831 mm")))
sketch1.addConstraint(Sketcher.Constraint("DistanceX", -1, 1, 33, 1, Q("35.831 mm")))
sketch1.addConstraint(Sketcher.Constraint("Distance", 9, Q("35.3406 mm")))
sketch1.addConstraint(Sketcher.Constraint("Distance", 11, Q("13.4072 mm")))
sketch1.addConstraint(Sketcher.Constraint("Distance", 13, Q("13.4072 mm")))
sketch1.addConstraint(Sketcher.Constraint("Distance", 15, Q("35.3406 mm")))
sketch1.addConstraint(Sketcher.Constraint("Distance", 26, Q("10.2474 mm")))
sketch1.addConstraint(Sketcher.Constraint("Distance", 28, Q("12.8337 mm")))
sketch1.addConstraint(Sketcher.Constraint("Distance", 30, Q("12.8337 mm")))
sketch1.addConstraint(Sketcher.Constraint("Distance", 32, Q("10.2474 mm")))
sketch1.addConstraint(Sketcher.Constraint("DistanceY", -1, 1, 4, 3, Q("77.1156 mm")))
sketch1.addConstraint(Sketcher.Constraint("DistanceX", -1, 1, 5, 3, Q("32.7505 mm")))
sketch1.addConstraint(Sketcher.Constraint("DistanceX", -1, 1, 10, 3, Q("13.2835 mm")))
sketch1.addConstraint(Sketcher.Constraint("DistanceY", -1, 1, 10, 3, Q("2.7022 mm")))
sketch1.addConstraint(Sketcher.Constraint("DistanceX", 14, 3, -1, 1, Q("13.2835 mm")))
sketch1.addConstraint(Sketcher.Constraint("DistanceY", -1, 1, 14, 3, Q("2.7022 mm")))
sketch1.addConstraint(Sketcher.Constraint("DistanceX", 16, 3, -1, 1, Q("40.1848 mm")))
sketch1.addConstraint(Sketcher.Constraint("DistanceX", 19, 3, -1, 1, Q("32.7505 mm")))
sketch1.addConstraint(Sketcher.Constraint("DistanceX", -1, 1, 31, 3, Q("38.6744 mm")))
sketch1.addConstraint(Sketcher.Constraint("DistanceY", -1, 1, 35, 3, Q("37.0782 mm")))
sketch1.addConstraint(Sketcher.Constraint("DistanceX", -1, 1, 37, 3, Q("16.9706 mm")))
sketch1.addConstraint(Sketcher.Constraint("DistanceY", -1, 1, 37, 3, Q("59.1598 mm")))
sketch1.addConstraint(Sketcher.Constraint("DistanceX", 39, 3, -1, 1, Q("16.9706 mm")))
sketch1.addConstraint(Sketcher.Constraint("DistanceY", -1, 1, 39, 3, Q("59.1598 mm")))
sketch1.addConstraint(Sketcher.Constraint("DistanceY", -1, 1, 40, 3, Q("37.0782 mm")))
sketch1.addConstraint(Sketcher.Constraint("DistanceX", -1, 1, 42, 3, Q("25.4558 mm")))
sketch1.addConstraint(Sketcher.Constraint("DistanceY", -1, 1, 47, 3, Q("69.6156 mm")))
sketch1.addConstraint(Sketcher.Constraint("DistanceX", -1, 1, 48, 3, Q("25.4558 mm")))
sketch1.addConstraint(Sketcher.Constraint("DistanceY", -1, 1, 48, 3, Q("101.5862 mm")))
sketch1.addConstraint(Sketcher.Constraint("DistanceY", -1, 1, 50, 3, Q("99.6156 mm")))
sketch1.addConstraint(Sketcher.Constraint("DistanceX", -1, 1, 51, 3, Q("16.9706 mm")))
sketch1.addConstraint(Sketcher.Constraint("DistanceY", -1, 1, 51, 3, Q("110.0715 mm")))
sketch1.addConstraint(Sketcher.Constraint("DistanceY", -1, 1, 52, 3, Q("69.6156 mm")))
sketch1.addConstraint(Sketcher.Constraint("DistanceX", 53, 3, -1, 1, Q("25.4558 mm")))
sketch1.addConstraint(Sketcher.Constraint("DistanceY", -1, 1, 58, 3, Q("99.6156 mm")))
sketch1.addConstraint(Sketcher.Constraint("DistanceX", 59, 3, -1, 1, Q("16.9706 mm")))
sketch1.addConstraint(Sketcher.Constraint("DistanceY", -1, 1, 59, 3, Q("110.0715 mm")))
sketch1.addConstraint(Sketcher.Constraint("DistanceX", 60, 3, -1, 1, Q("25.4558 mm")))
sketch1.addConstraint(Sketcher.Constraint("DistanceY", -1, 1, 60, 3, Q("101.5862 mm")))
sketch1.addConstraint(Sketcher.Constraint("DistanceX", -1, 1, 0, 2, Q("30.0072 mm")))
sketch1.addConstraint(Sketcher.Constraint("DistanceY", -1, 1, 2, 1, Q("92.1156 mm")))
sketch1.addConstraint(Sketcher.Constraint("DistanceY", -1, 1, 20, 1, Q("77.1156 mm")))
sketch1.addConstraint(Sketcher.Constraint("DistanceX", 23, 2, -1, 1, Q("30.0072 mm")))
sketch1.addConstraint(Sketcher.Constraint("DistanceX", 25, 1, -1, 1, Q("21.1612 mm")))
sketch1.addConstraint(Sketcher.Constraint("DistanceX", 27, 1, -1, 1, Q("11.0366 mm")))
sketch1.addConstraint(Sketcher.Constraint("DistanceX", -1, 1, 29, 2, Q("3.1574 mm")))
sketch1.addConstraint(Sketcher.Constraint("DistanceX", -1, 1, 31, 1, Q("13.9152 mm")))
sketch1.addConstraint(Sketcher.Constraint("DistanceY", -1, 1, 43, 2, Q("77.1156 mm")))
sketch1.addConstraint(Sketcher.Constraint("DistanceY", -1, 1, 45, 2, Q("92.1156 mm")))
sketch1.addConstraint(Sketcher.Constraint("DistanceY", -1, 1, 54, 2, Q("77.1156 mm")))
sketch1.addConstraint(Sketcher.Constraint("DistanceY", -1, 1, 56, 2, Q("92.1156 mm")))
pad1 = body.newObject("PartDesign::Pad", "Pad")
pad1.Profile = sketch1
pad1.Length = 3
pad1.Reversed = True

doc.recompute()
